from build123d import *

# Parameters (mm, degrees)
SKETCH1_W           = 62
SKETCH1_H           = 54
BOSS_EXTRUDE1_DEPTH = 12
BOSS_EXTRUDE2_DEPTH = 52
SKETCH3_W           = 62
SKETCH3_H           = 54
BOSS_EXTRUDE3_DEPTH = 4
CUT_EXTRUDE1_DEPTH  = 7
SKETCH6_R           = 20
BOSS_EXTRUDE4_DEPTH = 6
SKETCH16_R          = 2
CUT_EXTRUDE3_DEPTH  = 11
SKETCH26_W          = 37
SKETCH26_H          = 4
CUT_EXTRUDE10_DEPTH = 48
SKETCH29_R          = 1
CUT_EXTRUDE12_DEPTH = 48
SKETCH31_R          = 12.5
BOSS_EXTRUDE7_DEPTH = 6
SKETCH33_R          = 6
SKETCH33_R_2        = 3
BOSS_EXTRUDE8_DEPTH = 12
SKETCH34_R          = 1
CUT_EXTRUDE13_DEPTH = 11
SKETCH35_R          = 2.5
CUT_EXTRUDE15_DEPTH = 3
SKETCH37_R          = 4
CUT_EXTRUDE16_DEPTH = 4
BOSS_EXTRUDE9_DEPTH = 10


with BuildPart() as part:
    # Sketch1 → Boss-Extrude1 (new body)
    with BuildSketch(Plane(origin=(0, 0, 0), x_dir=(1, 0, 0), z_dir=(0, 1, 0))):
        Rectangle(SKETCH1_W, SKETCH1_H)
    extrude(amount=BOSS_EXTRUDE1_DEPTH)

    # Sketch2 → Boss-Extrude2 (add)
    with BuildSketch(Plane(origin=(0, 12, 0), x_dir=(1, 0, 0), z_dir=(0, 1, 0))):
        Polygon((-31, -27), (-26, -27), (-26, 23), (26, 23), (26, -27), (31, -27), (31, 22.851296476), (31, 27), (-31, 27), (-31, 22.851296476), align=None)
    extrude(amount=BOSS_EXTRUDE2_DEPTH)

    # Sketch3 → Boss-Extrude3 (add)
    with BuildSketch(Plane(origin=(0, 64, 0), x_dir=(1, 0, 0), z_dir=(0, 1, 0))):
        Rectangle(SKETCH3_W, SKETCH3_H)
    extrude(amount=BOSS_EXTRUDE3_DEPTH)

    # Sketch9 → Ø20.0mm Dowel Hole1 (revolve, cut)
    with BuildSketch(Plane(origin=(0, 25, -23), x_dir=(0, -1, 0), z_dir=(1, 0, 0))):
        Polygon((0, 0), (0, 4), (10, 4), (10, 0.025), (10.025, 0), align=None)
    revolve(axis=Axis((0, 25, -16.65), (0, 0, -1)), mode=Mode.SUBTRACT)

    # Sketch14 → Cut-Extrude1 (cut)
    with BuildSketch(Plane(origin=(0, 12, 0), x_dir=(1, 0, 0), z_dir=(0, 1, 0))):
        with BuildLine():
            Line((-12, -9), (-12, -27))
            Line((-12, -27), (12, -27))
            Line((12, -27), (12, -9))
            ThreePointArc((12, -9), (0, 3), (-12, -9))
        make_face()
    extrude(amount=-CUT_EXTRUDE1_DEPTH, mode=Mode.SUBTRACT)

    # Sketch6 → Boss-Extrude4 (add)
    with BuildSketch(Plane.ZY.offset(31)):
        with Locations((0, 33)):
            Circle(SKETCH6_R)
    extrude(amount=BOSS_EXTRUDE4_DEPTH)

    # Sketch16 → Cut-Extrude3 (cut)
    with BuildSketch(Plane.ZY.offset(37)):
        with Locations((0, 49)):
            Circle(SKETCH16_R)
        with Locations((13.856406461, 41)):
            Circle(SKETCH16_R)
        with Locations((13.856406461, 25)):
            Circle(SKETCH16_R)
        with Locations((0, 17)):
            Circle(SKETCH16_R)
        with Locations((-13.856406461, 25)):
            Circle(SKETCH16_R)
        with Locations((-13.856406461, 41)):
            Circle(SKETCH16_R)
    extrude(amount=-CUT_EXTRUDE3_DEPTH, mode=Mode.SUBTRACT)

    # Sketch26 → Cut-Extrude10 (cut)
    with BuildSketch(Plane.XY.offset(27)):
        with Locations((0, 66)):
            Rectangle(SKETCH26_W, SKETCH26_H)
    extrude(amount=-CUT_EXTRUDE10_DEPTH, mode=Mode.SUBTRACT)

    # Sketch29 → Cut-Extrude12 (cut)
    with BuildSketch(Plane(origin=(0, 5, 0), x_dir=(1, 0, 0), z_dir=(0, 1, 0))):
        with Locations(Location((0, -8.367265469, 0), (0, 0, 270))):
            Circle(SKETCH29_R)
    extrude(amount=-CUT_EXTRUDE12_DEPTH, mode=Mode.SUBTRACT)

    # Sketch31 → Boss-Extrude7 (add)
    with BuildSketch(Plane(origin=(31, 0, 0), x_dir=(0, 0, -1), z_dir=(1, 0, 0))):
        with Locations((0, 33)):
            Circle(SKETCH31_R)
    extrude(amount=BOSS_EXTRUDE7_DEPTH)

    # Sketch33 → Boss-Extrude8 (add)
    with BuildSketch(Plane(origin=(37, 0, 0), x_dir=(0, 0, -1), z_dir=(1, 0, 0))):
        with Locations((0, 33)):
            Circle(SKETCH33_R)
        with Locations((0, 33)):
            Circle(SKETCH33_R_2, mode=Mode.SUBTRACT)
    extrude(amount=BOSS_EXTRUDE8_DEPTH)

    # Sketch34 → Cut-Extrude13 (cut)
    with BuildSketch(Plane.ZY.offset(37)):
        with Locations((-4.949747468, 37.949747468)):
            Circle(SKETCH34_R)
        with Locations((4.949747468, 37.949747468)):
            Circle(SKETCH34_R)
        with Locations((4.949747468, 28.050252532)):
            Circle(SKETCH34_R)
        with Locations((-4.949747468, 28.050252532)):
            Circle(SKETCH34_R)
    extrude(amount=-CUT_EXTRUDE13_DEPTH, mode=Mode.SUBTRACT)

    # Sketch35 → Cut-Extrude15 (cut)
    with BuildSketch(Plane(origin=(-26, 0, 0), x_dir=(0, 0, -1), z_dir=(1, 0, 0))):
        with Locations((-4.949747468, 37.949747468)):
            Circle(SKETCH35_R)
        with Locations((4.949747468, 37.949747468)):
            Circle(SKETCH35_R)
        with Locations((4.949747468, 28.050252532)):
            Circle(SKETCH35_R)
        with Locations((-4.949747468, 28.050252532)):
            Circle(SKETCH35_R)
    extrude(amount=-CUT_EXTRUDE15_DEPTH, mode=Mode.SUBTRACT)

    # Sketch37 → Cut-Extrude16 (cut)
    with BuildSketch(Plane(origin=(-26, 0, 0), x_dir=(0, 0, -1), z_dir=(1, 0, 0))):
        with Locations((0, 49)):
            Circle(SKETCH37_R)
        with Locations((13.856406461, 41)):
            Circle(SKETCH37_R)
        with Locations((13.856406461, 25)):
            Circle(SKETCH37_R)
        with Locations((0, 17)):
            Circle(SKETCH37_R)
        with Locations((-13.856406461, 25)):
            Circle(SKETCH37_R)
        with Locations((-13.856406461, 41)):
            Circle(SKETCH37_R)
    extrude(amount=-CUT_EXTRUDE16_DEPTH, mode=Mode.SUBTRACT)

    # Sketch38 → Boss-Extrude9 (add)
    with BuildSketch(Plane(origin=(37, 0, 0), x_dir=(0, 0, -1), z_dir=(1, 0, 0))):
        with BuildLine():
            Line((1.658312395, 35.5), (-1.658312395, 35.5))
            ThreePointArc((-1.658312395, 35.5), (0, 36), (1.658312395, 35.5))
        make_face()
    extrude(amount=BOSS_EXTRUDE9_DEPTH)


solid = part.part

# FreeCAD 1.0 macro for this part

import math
import FreeCAD as App
import Part
import Sketcher

V = App.Vector
Q = App.Units.Quantity

doc = App.newDocument("Part")
body = doc.addObject("PartDesign::Body", "Body")

sketch1 = doc.addObject("Sketcher::SketchObject", "Sketch")
body.addObject(sketch1)
sketch1.AttachmentSupport = (doc.XZ_Plane, [""])
sketch1.MapMode = "FlatFace"
sketch1.addGeometry(Part.LineSegment(V(-31, -27, 0), V(-31, 27, 0)), False)
sketch1.addGeometry(Part.LineSegment(V(-31, 27, 0), V(31, 27, 0)), False)
sketch1.addGeometry(Part.LineSegment(V(31, 27, 0), V(31, -27, 0)), False)
sketch1.addGeometry(Part.LineSegment(V(31, -27, 0), V(-31, -27, 0)), False)
sketch1.addConstraint(Sketcher.Constraint("Coincident", 0, 2, 1, 1))
sketch1.addConstraint(Sketcher.Constraint("Coincident", 1, 2, 2, 1))
sketch1.addConstraint(Sketcher.Constraint("Coincident", 2, 2, 3, 1))
sketch1.addConstraint(Sketcher.Constraint("Coincident", 3, 2, 0, 1))
sketch1.addConstraint(Sketcher.Constraint("Vertical", 0))
sketch1.addConstraint(Sketcher.Constraint("Horizontal", 1))
sketch1.addConstraint(Sketcher.Constraint("Vertical", 2))
sketch1.addConstraint(Sketcher.Constraint("Horizontal", 3))
sketch1.addConstraint(Sketcher.Constraint("Symmetric", 0, 2, 2, 2, -1, 1))
sketch1.addConstraint(Sketcher.Constraint("DistanceX", 1, 1, 1, 2, Q("62 mm")))
sketch1.addConstraint(Sketcher.Constraint("DistanceY", 0, 1, 0, 2, Q("54 mm")))
pad1 = doc.addObject("PartDesign::Pad", "Pad")
body.addObject(pad1)
pad1.Profile = sketch1
pad1.Length = 12
pad1.Reversed = True

sketch2 = doc.addObject("Sketcher::SketchObject", "Sketch001")
body.addObject(sketch2)
sketch2.AttachmentSupport = (doc.XZ_Plane, [""])
sketch2.MapMode = "FlatFace"
sketch2.AttachmentOffset = App.Placement(V(0, 0, -12), App.Rotation())
sketch2.addGeometry(Part.LineSegment(V(-31, 27, 0), V(-26, 27, 0)), False)
sketch2.addGeometry(Part.LineSegment(V(-26, 27, 0), V(-26, -23, 0)), False)
sketch2.addGeometry(Part.LineSegment(V(-26, -23, 0), V(26, -23, 0)), False)
sketch2.addGeometry(Part.LineSegment(V(26, -23, 0), V(26, 27, 0)), False)
sketch2.addGeometry(Part.LineSegment(V(26, 27, 0), V(31, 27, 0)), False)
sketch2.addGeometry(Part.LineSegment(V(31, 27, 0), V(31, -27, 0)), False)
sketch2.addGeometry(Part.LineSegment(V(31, -27, 0), V(-31, -27, 0)), False)
sketch2.addGeometry(Part.LineSegment(V(-31, -27, 0), V(-31, 27, 0)), False)
sketch2.addConstraint(Sketcher.Constraint("Coincident", 0, 2, 1, 1))
sketch2.addConstraint(Sketcher.Constraint("Coincident", 1, 2, 2, 1))
sketch2.addConstraint(Sketcher.Constraint("Coincident", 2, 2, 3, 1))
sketch2.addConstraint(Sketcher.Constraint("Coincident", 3, 2, 4, 1))
sketch2.addConstraint(Sketcher.Constraint("Coincident", 4, 2, 5, 1))
sketch2.addConstraint(Sketcher.Constraint("Coincident", 5, 2, 6, 1))
sketch2.addConstraint(Sketcher.Constraint("Coincident", 6, 2, 7, 1))
sketch2.addConstraint(Sketcher.Constraint("Coincident", 7, 2, 0, 1))
sketch2.addConstraint(Sketcher.Constraint("Horizontal", 0))
sketch2.addConstraint(Sketcher.Constraint("Vertical", 1))
sketch2.addConstraint(Sketcher.Constraint("Horizontal", 2))
sketch2.addConstraint(Sketcher.Constraint("Vertical", 3))
sketch2.addConstraint(Sketcher.Constraint("Horizontal", 4))
sketch2.addConstraint(Sketcher.Constraint("Vertical", 5))
sketch2.addConstraint(Sketcher.Constraint("Horizontal", 6))
sketch2.addConstraint(Sketcher.Constraint("Vertical", 7))
sketch2.addConstraint(Sketcher.Constraint("Symmetric", 4, 2, 6, 2, -1, 1))
sketch2.addConstraint(Sketcher.Constraint("Symmetric", 0, 2, 3, 2, -2))
sketch2.addConstraint(Sketcher.Constraint("DistanceX", 0, 1, 0, 2, Q("5 mm")))
sketch2.addConstraint(Sketcher.Constraint("DistanceX", 2, 1, 2, 2, Q("52 mm")))
sketch2.addConstraint(Sketcher.Constraint("DistanceY", 1, 2, 1, 1, Q("50 mm")))
sketch2.addConstraint(Sketcher.Constraint("DistanceY", 5, 2, 5, 1, Q("54 mm")))
pad2 = doc.addObject("PartDesign::Pad", "Pad001")
body.addObject(pad2)
pad2.Profile = sketch2
pad2.Length = 52
pad2.Reversed = True

sketch3 = doc.addObject("Sketcher::SketchObject", "Sketch002")
body.addObject(sketch3)
sketch3.AttachmentSupport = (doc.XZ_Plane, [""])
sketch3.MapMode = "FlatFace"
sketch3.AttachmentOffset = App.Placement(V(0, 0, -64), App.Rotation())
sketch3.addGeometry(Part.LineSegment(V(-31, -27, 0), V(-31, 27, 0)), False)
sketch3.addGeometry(Part.LineSegment(V(-31, 27, 0), V(31, 27, 0)), False)
sketch3.addGeometry(Part.LineSegment(V(31, 27, 0), V(31, -27, 0)), False)
sketch3.addGeometry(Part.LineSegment(V(31, -27, 0), V(-31, -27, 0)), False)
sketch3.addConstraint(Sketcher.Constraint("Coincident", 0, 2, 1, 1))
sketch3.addConstraint(Sketcher.Constraint("Coincident", 1, 2, 2, 1))
sketch3.addConstraint(Sketcher.Constraint("Coincident", 2, 2, 3, 1))
sketch3.addConstraint(Sketcher.Constraint("Coincident", 3, 2, 0, 1))
sketch3.addConstraint(Sketcher.Constraint("Vertical", 0))
sketch3.addConstraint(Sketcher.Constraint("Horizontal", 1))
sketch3.addConstraint(Sketcher.Constraint("Vertical", 2))
sketch3.addConstraint(Sketcher.Constraint("Horizontal", 3))
sketch3.addConstraint(Sketcher.Constraint("Symmetric", 0, 2, 2, 2, -1, 1))
sketch3.addConstraint(Sketcher.Constraint("DistanceX", 1, 1, 1, 2, Q("62 mm")))
sketch3.addConstraint(Sketcher.Constraint("DistanceY", 0, 1, 0, 2, Q("54 mm")))
pad3 = doc.addObject("PartDesign::Pad", "Pad002")
body.addObject(pad3)
pad3.Profile = sketch3
pad3.Length = 4
pad3.Reversed = True

sketch4 = doc.addObject("Sketcher::SketchObject", "Sketch003")
body.addObject(sketch4)
sketch4.AttachmentSupport = (doc.YZ_Plane, [""])
sketch4.MapMode = "FlatFace"
sketch4.addGeometry(Part.LineSegment(V(25, -27, 0), V(25, -23, 0)), False)
sketch4.addGeometry(Part.LineSegment(V(25, -23, 0), V(14.975, -23, 0)), False)
sketch4.addGeometry(Part.LineSegment(V(14.975, -23, 0), V(15, -23.025, 0)), False)
sketch4.addGeometry(Part.LineSegment(V(15, -23.025, 0), V(15, -27, 0)), False)
sketch4.addGeometry(Part.LineSegment(V(15, -27, 0), V(25, -27, 0)), False)
sketch4.addGeometry(Part.LineSegment(V(25, -23, 0), V(25, -27, 0)), True)
sketch4.addConstraint(Sketcher.Constraint("Coincident", 0, 2, 1, 1))
sketch4.addConstraint(Sketcher.Constraint("Coincident", 1, 2, 2, 1))
sketch4.addConstraint(Sketcher.Constraint("Coincident", 2, 2, 3, 1))
sketch4.addConstraint(Sketcher.Constraint("Coincident", 3, 2, 4, 1))
sketch4.addConstraint(Sketcher.Constraint("Coincident", 4, 2, 0, 1))
sketch4.addConstraint(Sketcher.Constraint("Vertical", 0))
sketch4.addConstraint(Sketcher.Constraint("Horizontal", 1))
sketch4.addConstraint(Sketcher.Constraint("Vertical", 3))
sketch4.addConstraint(Sketcher.Constraint("Horizontal", 4))
sketch4.addConstraint(Sketcher.Constraint("Vertical", 5))
sketch4.addConstraint(Sketcher.Constraint("Coincident", 5, 1, 0, 2))
sketch4.addConstraint(Sketcher.Constraint("Horizontal", 3, 2, 5, 2))
sketch4.addConstraint(Sketcher.Constraint("DistanceX", 4, 1, 4, 2, Q("10 mm")))
sketch4.addConstraint(Sketcher.Constraint("DistanceY", 0, 1, 0, 2, Q("4 mm")))
sketch4.addConstraint(Sketcher.Constraint("Angle", 2, Q("-45 deg")))
sketch4.addConstraint(Sketcher.Constraint("DistanceX", -1, 1, 0, 2, Q("25 mm")))
sketch4.addConstraint(Sketcher.Constraint("DistanceY", 0, 2, -1, 1, Q("23 mm")))
sketch4.addConstraint(Sketcher.Constraint("DistanceX", 1, 2, 1, 1, Q("10.025 mm")))
groove = doc.addObject("PartDesign::Groove", "Groove")
body.addObject(groove)
groove.Profile = sketch4
groove.ReferenceAxis = (sketch4, ["Axis0"])
groove.Angle = 360

sketch5 = doc.addObject("Sketcher::SketchObject", "Sketch004")
body.addObject(sketch5)
sketch5.AttachmentSupport = (doc.XZ_Plane, [""])
sketch5.MapMode = "FlatFace"
sketch5.AttachmentOffset = App.Placement(V(0, 0, -12), App.Rotation())
sketch5.addGeometry(Part.LineSegment(V(-12, 9, 0), V(-12, 27, 0)), False)
sketch5.addGeometry(Part.LineSegment(V(-12, 27, 0), V(12, 27, 0)), False)
sketch5.addGeometry(Part.LineSegment(V(12, 27, 0), V(12, 9, 0)), False)
sketch5.addGeometry(Part.ArcOfCircle(Part.Circle(V(0, 9, 0), V(0, 0, 1), 12), math.radians(180), math.radians(360)), False)
sketch5.addConstraint(Sketcher.Constraint("Coincident", 0, 2, 1, 1))
sketch5.addConstraint(Sketcher.Constraint("Coincident", 1, 2, 2, 1))
sketch5.addConstraint(Sketcher.Constraint("Tangent", 2, 2, 3, 2))
sketch5.addConstraint(Sketcher.Constraint("Tangent", 3, 1, 0, 1))
sketch5.addConstraint(Sketcher.Constraint("Vertical", 0))
sketch5.addConstraint(Sketcher.Constraint("Horizontal", 1))
sketch5.addConstraint(Sketcher.Constraint("Vertical", 2))
sketch5.addConstraint(Sketcher.Constraint("PointOnObject", 3, 3, -2))
sketch5.addConstraint(Sketcher.Constraint("Radius", 3, Q("12 mm")))
sketch5.addConstraint(Sketcher.Constraint("DistanceY", 0, 1, 0, 2, Q("18 mm")))
sketch5.addConstraint(Sketcher.Constraint("DistanceY", -1, 1, 3, 3, Q("9 mm")))
pocket1 = doc.addObject("PartDesign::Pocket", "Pocket")
body.addObject(pocket1)
pocket1.Profile = sketch5
pocket1.Length = 7
pocket1.Reversed = True

sketch6 = doc.addObject("Sketcher::SketchObject", "Sketch005")
body.addObject(sketch6)
sketch6.AttachmentSupport = (doc.YZ_Plane, [""])
sketch6.MapMode = "FlatFace"
sketch6.AttachmentOffset = App.Placement(V(0, 0, -31), App.Rotation())
sketch6.addGeometry(Part.Circle(V(33, 0, 0), V(0, 0, 1), 20), False)
sketch6.addConstraint(Sketcher.Constraint("PointOnObject", 0, 3, -1))
sketch6.addConstraint(Sketcher.Constraint("Diameter", 0, Q("40 mm")))
sketch6.addConstraint(Sketcher.Constraint("DistanceX", -1, 1, 0, 3, Q("33 mm")))
pad4 = doc.addObject("PartDesign::Pad", "Pad003")
body.addObject(pad4)
pad4.Profile = sketch6
pad4.Length = 6
pad4.Reversed = True

sketch7 = doc.addObject("Sketcher::SketchObject", "Sketch006")
body.addObject(sketch7)
sketch7.AttachmentSupport = (doc.YZ_Plane, [""])
sketch7.MapMode = "FlatFace"
sketch7.AttachmentOffset = App.Placement(V(0, 0, -37), App.Rotation())
sketch7.addGeometry(Part.Circle(V(49, 0, 0), V(0, 0, 1), 2), False)
sketch7.addGeometry(Part.Circle(V(41, 13.9, 0), V(0, 0, 1), 2), False)
sketch7.addGeometry(Part.Circle(V(25, 13.9, 0), V(0, 0, 1), 2), False)
sketch7.addGeometry(Part.Circle(V(17, 0, 0), V(0, 0, 1), 2), False)
sketch7.addGeometry(Part.Circle(V(25, -13.9, 0), V(0, 0, 1), 2), False)
sketch7.addGeometry(Part.Circle(V(41, -13.9, 0), V(0, 0, 1), 2), False)
sketch7.addConstraint(Sketcher.Constraint("Equal", 0, 1))
sketch7.addConstraint(Sketcher.Constraint("Equal", 1, 2))
sketch7.addConstraint(Sketcher.Constraint("Equal", 2, 3))
sketch7.addConstraint(Sketcher.Constraint("Equal", 3, 4))
sketch7.addConstraint(Sketcher.Constraint("Equal", 4, 5))
sketch7.addConstraint(Sketcher.Constraint("Symmetric", 2, 3, 4, 3, -1))
sketch7.addConstraint(Sketcher.Constraint("Symmetric", 1, 3, 5, 3, -1))
sketch7.addConstraint(Sketcher.Constraint("PointOnObject", 0, 3, -1))
sketch7.addConstraint(Sketcher.Constraint("PointOnObject", 3, 3, -1))
sketch7.addConstraint(Sketcher.Constraint("Horizontal", 1, 3, 2, 3))
sketch7.addConstraint(Sketcher.Constraint("Diameter", 0, Q("4 mm")))
sketch7.addConstraint(Sketcher.Constraint("DistanceX", -1, 1, 0, 3, Q("49 mm")))
sketch7.addConstraint(Sketcher.Constraint("DistanceX", -1, 1, 1, 3, Q("41 mm")))
sketch7.addConstraint(Sketcher.Constraint("DistanceX", -1, 1, 2, 3, Q("25 mm")))
sketch7.addConstraint(Sketcher.Constraint("DistanceX", -1, 1, 3, 3, Q("17 mm")))
sketch7.addConstraint(Sketcher.Constraint("DistanceY", -1, 1, 1, 3, Q("13.856406 mm")))
pocket2 = doc.addObject("PartDesign::Pocket", "Pocket001")
body.addObject(pocket2)
pocket2.Profile = sketch7
pocket2.Length = 11
pocket2.Reversed = True

sketch8 = doc.addObject("Sketcher::SketchObject", "Sketch007")
body.addObject(sketch8)
sketch8.AttachmentSupport = (doc.XY_Plane, [""])
sketch8.MapMode = "FlatFace"
sketch8.AttachmentOffset = App.Placement(V(0, 0, 27), App.Rotation())
sketch8.addGeometry(Part.LineSegment(V(-18.5, 68, 0), V(-18.5, 64, 0)), False)
sketch8.addGeometry(Part.LineSegment(V(-18.5, 64, 0), V(18.5, 64, 0)), False)
sketch8.addGeometry(Part.LineSegment(V(18.5, 64, 0), V(18.5, 68, 0)), False)
sketch8.addGeometry(Part.LineSegment(V(18.5, 68, 0), V(-18.5, 68, 0)), False)
sketch8.addConstraint(Sketcher.Constraint("Coincident", 0, 2, 1, 1))
sketch8.addConstraint(Sketcher.Constraint("Coincident", 1, 2, 2, 1))
sketch8.addConstraint(Sketcher.Constraint("Coincident", 2, 2, 3, 1))
sketch8.addConstraint(Sketcher.Constraint("Coincident", 3, 2, 0, 1))
sketch8.addConstraint(Sketcher.Constraint("Vertical", 0))
sketch8.addConstraint(Sketcher.Constraint("Horizontal", 1))
sketch8.addConstraint(Sketcher.Constraint("Vertical", 2))
sketch8.addConstraint(Sketcher.Constraint("Horizontal", 3))
sketch8.addConstraint(Sketcher.Constraint("DistanceX", 1, 1, 1, 2, Q("37 mm")))
sketch8.addConstraint(Sketcher.Constraint("DistanceY", 0, 2, 0, 1, Q("4 mm")))
sketch8.addConstraint(Sketcher.Constraint("DistanceY", -1, 1, 0, 2, Q("64 mm")))
sketch8.addConstraint(Sketcher.Constraint("DistanceX", 0, 2, -1, 1, Q("18.5 mm")))
pocket3 = doc.addObject("PartDesign::Pocket", "Pocket002")
body.addObject(pocket3)
pocket3.Profile = sketch8
pocket3.Length = 48

sketch9 = doc.addObject("Sketcher::SketchObject", "Sketch008")
body.addObject(sketch9)
sketch9.AttachmentSupport = (doc.XZ_Plane, [""])
sketch9.MapMode = "FlatFace"
sketch9.AttachmentOffset = App.Placement(V(0, 0, -5), App.Rotation())
sketch9.addGeometry(Part.Circle(V(0, 8.4, 0), V(0, 0, 1), 1), False)
sketch9.addConstraint(Sketcher.Constraint("PointOnObject", 0, 3, -2))
sketch9.addConstraint(Sketcher.Constraint("Diameter", 0, Q("2 mm")))
sketch9.addConstraint(Sketcher.Constraint("DistanceY", -1, 1, 0, 3, Q("8.367265 mm")))
pocket4 = doc.addObject("PartDesign::Pocket", "Pocket003")
body.addObject(pocket4)
pocket4.Profile = sketch9
pocket4.Length = 48
pocket4.Reversed = True

sketch10 = doc.addObject("Sketcher::SketchObject", "Sketch009")
body.addObject(sketch10)
sketch10.AttachmentSupport = (doc.YZ_Plane, [""])
sketch10.MapMode = "FlatFace"
sketch10.AttachmentOffset = App.Placement(V(0, 0, 31), App.Rotation())
sketch10.addGeometry(Part.Circle(V(33, 0, 0), V(0, 0, 1), 12), False)
sketch10.addConstraint(Sketcher.Constraint("PointOnObject", 0, 3, -1))
sketch10.addConstraint(Sketcher.Constraint("Diameter", 0, Q("25 mm")))
sketch10.addConstraint(Sketcher.Constraint("DistanceX", -1, 1, 0, 3, Q("33 mm")))
pad5 = doc.addObject("PartDesign::Pad", "Pad004")
body.addObject(pad5)
pad5.Profile = sketch10
pad5.Length = 6

sketch11 = doc.addObject("Sketcher::SketchObject", "Sketch010")
body.addObject(sketch11)
sketch11.AttachmentSupport = (doc.YZ_Plane, [""])
sketch11.MapMode = "FlatFace"
sketch11.AttachmentOffset = App.Placement(V(0, 0, 37), App.Rotation())
sketch11.addGeometry(Part.Circle(V(33, 0, 0), V(0, 0, 1), 6), False)
sketch11.addGeometry(Part.Circle(V(33, 0, 0), V(0, 0, 1), 3), False)
sketch11.addConstraint(Sketcher.Constraint("Coincident", 1, 3, 0, 3))
sketch11.addConstraint(Sketcher.Constraint("PointOnObject", 0, 3, -1))
sketch11.addConstraint(Sketcher.Constraint("Diameter", 0, Q("12 mm")))
sketch11.addConstraint(Sketcher.Constraint("Diameter", 1, Q("6 mm")))
sketch11.addConstraint(Sketcher.Constraint("DistanceX", -1, 1, 0, 3, Q("33 mm")))
pad6 = doc.addObject("PartDesign::Pad", "Pad005")
body.addObject(pad6)
pad6.Profile = sketch11
pad6.Length = 12

sketch12 = doc.addObject("Sketcher::SketchObject", "Sketch011")
body.addObject(sketch12)
sketch12.AttachmentSupport = (doc.YZ_Plane, [""])
sketch12.MapMode = "FlatFace"
sketch12.AttachmentOffset = App.Placement(V(0, 0, -37), App.Rotation())
sketch12.addGeometry(Part.Circle(V(37.9, -4.9, 0), V(0, 0, 1), 1), False)
sketch12.addGeometry(Part.Circle(V(37.9, 4.9, 0), V(0, 0, 1), 1), False)
sketch12.addGeometry(Part.Circle(V(28.1, 4.9, 0), V(0, 0, 1), 1), False)
sketch12.addGeometry(Part.Circle(V(28.1, -4.9, 0), V(0, 0, 1), 1), False)
sketch12.addConstraint(Sketcher.Constraint("Equal", 0, 1))
sketch12.addConstraint(Sketcher.Constraint("Equal", 1, 2))
sketch12.addConstraint(Sketcher.Constraint("Equal", 2, 3))
sketch12.addConstraint(Sketcher.Constraint("Symmetric", 0, 3, 1, 3, -1))
sketch12.addConstraint(Sketcher.Constraint("Symmetric", 2, 3, 3, 3, -1))
sketch12.addConstraint(Sketcher.Constraint("Horizontal", 1, 3, 2, 3))
sketch12.addConstraint(Sketcher.Constraint("Diameter", 0, Q("2 mm")))
sketch12.addConstraint(Sketcher.Constraint("DistanceX", -1, 1, 0, 3, Q("37.949747 mm")))
sketch12.addConstraint(Sketcher.Constraint("DistanceY", 0, 3, -1, 1, Q("4.949747 mm")))
sketch12.addConstraint(Sketcher.Constraint("DistanceX", -1, 1, 2, 3, Q("28.050253 mm")))
pocket5 = doc.addObject("PartDesign::Pocket", "Pocket004")
body.addObject(pocket5)
pocket5.Profile = sketch12
pocket5.Length = 11
pocket5.Reversed = True

sketch13 = doc.addObject("Sketcher::SketchObject", "Sketch012")
body.addObject(sketch13)
sketch13.AttachmentSupport = (doc.YZ_Plane, [""])
sketch13.MapMode = "FlatFace"
sketch13.AttachmentOffset = App.Placement(V(0, 0, -26), App.Rotation())
sketch13.addGeometry(Part.Circle(V(37.9, 4.9, 0), V(0, 0, 1), 2.5), False)
sketch13.addGeometry(Part.Circle(V(37.9, -4.9, 0), V(0, 0, 1), 2.5), False)
sketch13.addGeometry(Part.Circle(V(28.1, -4.9, 0), V(0, 0, 1), 2.5), False)
sketch13.addGeometry(Part.Circle(V(28.1, 4.9, 0), V(0, 0, 1), 2.5), False)
sketch13.addConstraint(Sketcher.Constraint("Equal", 0, 1))
sketch13.addConstraint(Sketcher.Constraint("Equal", 1, 2))
sketch13.addConstraint(Sketcher.Constraint("Equal", 2, 3))
sketch13.addConstraint(Sketcher.Constraint("Symmetric", 0, 3, 1, 3, -1))
sketch13.addConstraint(Sketcher.Constraint("Symmetric", 2, 3, 3, 3, -1))
sketch13.addConstraint(Sketcher.Constraint("Horizontal", 1, 3, 2, 3))
sketch13.addConstraint(Sketcher.Constraint("Diameter", 0, Q("5 mm")))
sketch13.addConstraint(Sketcher.Constraint("DistanceX", -1, 1, 0, 3, Q("37.949747 mm")))
sketch13.addConstraint(Sketcher.Constraint("DistanceY", -1, 1, 0, 3, Q("4.949747 mm")))
sketch13.addConstraint(Sketcher.Constraint("DistanceX", -1, 1, 2, 3, Q("28.050253 mm")))
pocket6 = doc.addObject("PartDesign::Pocket", "Pocket005")
body.addObject(pocket6)
pocket6.Profile = sketch13
pocket6.Length = 3

sketch14 = doc.addObject("Sketcher::SketchObject", "Sketch013")
body.addObject(sketch14)
sketch14.AttachmentSupport = (doc.YZ_Plane, [""])
sketch14.MapMode = "FlatFace"
sketch14.AttachmentOffset = App.Placement(V(0, 0, -26), App.Rotation())
sketch14.addGeometry(Part.Circle(V(49, 0, 0), V(0, 0, 1), 4), False)
sketch14.addGeometry(Part.Circle(V(41, -13.9, 0), V(0, 0, 1), 4), False)
sketch14.addGeometry(Part.Circle(V(25, -13.9, 0), V(0, 0, 1), 4), False)
sketch14.addGeometry(Part.Circle(V(17, 0, 0), V(0, 0, 1), 4), False)
sketch14.addGeometry(Part.Circle(V(25, 13.9, 0), V(0, 0, 1), 4), False)
sketch14.addGeometry(Part.Circle(V(41, 13.9, 0), V(0, 0, 1), 4), False)
sketch14.addConstraint(Sketcher.Constraint("Equal", 0, 1))
sketch14.addConstraint(Sketcher.Constraint("Equal", 1, 2))
sketch14.addConstraint(Sketcher.Constraint("Equal", 2, 3))
sketch14.addConstraint(Sketcher.Constraint("Equal", 3, 4))
sketch14.addConstraint(Sketcher.Constraint("Equal", 4, 5))
sketch14.addConstraint(Sketcher.Constraint("Symmetric", 2, 3, 4, 3, -1))
sketch14.addConstraint(Sketcher.Constraint("Symmetric", 1, 3, 5, 3, -1))
sketch14.addConstraint(Sketcher.Constraint("PointOnObject", 0, 3, -1))
sketch14.addConstraint(Sketcher.Constraint("PointOnObject", 3, 3, -1))
sketch14.addConstraint(Sketcher.Constraint("Horizontal", 1, 3, 2, 3))
sketch14.addConstraint(Sketcher.Constraint("Diameter", 0, Q("8 mm")))
sketch14.addConstraint(Sketcher.Constraint("DistanceX", -1, 1, 0, 3, Q("49 mm")))
sketch14.addConstraint(Sketcher.Constraint("DistanceX", -1, 1, 1, 3, Q("41 mm")))
sketch14.addConstraint(Sketcher.Constraint("DistanceX", -1, 1, 2, 3, Q("25 mm")))
sketch14.addConstraint(Sketcher.Constraint("DistanceX", -1, 1, 3, 3, Q("17 mm")))
sketch14.addConstraint(Sketcher.Constraint("DistanceY", 1, 3, -1, 1, Q("13.856406 mm")))
pocket7 = doc.addObject("PartDesign::Pocket", "Pocket006")
body.addObject(pocket7)
pocket7.Profile = sketch14
pocket7.Length = 4

sketch15 = doc.addObject("Sketcher::SketchObject", "Sketch014")
body.addObject(sketch15)
sketch15.AttachmentSupport = (doc.YZ_Plane, [""])
sketch15.MapMode = "FlatFace"
sketch15.AttachmentOffset = App.Placement(V(0, 0, 37), App.Rotation())
sketch15.addGeometry(Part.LineSegment(V(35.5, 1.7, 0), V(35.5, -1.7, 0)), False)
sketch15.addGeometry(Part.ArcOfCircle(Part.Circle(V(33, 0, 0), V(0, 0, 1), 3), math.radians(-34), math.radians(34)), False)
sketch15.addConstraint(Sketcher.Constraint("Coincident", 0, 1, 1, 2))
sketch15.addConstraint(Sketcher.Constraint("Coincident", 1, 1, 0, 2))
sketch15.addConstraint(Sketcher.Constraint("Vertical", 0))
sketch15.addConstraint(Sketcher.Constraint("PointOnObject", 1, 3, -1))
sketch15.addConstraint(Sketcher.Constraint("Radius", 1, Q("3 mm")))
sketch15.addConstraint(Sketcher.Constraint("DistanceX", -1, 1, 1, 3, Q("33 mm")))
sketch15.addConstraint(Sketcher.Constraint("DistanceX", -1, 1, 0, 1, Q("35.5 mm")))
pad7 = doc.addObject("PartDesign::Pad", "Pad006")
body.addObject(pad7)
pad7.Profile = sketch15
pad7.Length = 10

doc.recompute()
